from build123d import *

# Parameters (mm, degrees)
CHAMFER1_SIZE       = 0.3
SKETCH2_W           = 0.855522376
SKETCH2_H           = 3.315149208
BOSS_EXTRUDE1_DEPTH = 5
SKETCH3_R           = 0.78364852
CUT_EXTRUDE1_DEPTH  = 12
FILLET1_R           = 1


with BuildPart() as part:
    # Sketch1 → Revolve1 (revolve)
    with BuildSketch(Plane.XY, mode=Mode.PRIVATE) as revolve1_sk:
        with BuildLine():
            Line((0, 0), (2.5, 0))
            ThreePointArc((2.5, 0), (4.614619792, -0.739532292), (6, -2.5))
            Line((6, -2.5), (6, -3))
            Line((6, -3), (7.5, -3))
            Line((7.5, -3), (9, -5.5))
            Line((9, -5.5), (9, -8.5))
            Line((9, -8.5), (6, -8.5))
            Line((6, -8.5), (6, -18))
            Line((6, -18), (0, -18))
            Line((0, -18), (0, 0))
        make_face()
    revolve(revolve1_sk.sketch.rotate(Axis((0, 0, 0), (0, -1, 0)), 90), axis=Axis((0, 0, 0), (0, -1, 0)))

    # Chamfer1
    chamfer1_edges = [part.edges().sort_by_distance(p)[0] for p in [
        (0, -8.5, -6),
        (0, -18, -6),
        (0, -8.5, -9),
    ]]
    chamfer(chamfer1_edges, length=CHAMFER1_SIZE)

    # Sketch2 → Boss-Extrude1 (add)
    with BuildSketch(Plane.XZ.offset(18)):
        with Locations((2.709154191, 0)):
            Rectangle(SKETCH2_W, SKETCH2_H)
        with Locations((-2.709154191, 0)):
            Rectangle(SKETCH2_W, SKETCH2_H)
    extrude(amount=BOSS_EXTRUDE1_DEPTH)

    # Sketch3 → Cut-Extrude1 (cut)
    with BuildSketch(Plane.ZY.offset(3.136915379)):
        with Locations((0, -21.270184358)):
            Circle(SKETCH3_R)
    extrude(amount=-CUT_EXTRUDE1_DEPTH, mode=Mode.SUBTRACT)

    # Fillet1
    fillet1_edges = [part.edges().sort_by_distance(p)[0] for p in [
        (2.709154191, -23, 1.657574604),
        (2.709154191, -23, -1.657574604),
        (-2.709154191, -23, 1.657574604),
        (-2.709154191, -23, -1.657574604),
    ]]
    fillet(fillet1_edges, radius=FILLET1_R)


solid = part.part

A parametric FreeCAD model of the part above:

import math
import FreeCAD as App
import Part
import Sketcher

V = App.Vector
Q = App.Units.Quantity


def edges_at(feature, points):
    """Names of the edges that pass closest to the given points."""
    edges = feature.Shape.Edges
    near = lambda p: min(range(len(edges)), key=lambda i: edges[i].distToShape(Part.Vertex(*p))[0])
    return sorted({f"Edge{near(p) + 1}" for p in points})

doc = App.newDocument("Part")
body = doc.addObject("PartDesign::Body", "Body")

# Sketch on XY plane
sketch1 = body.newObject("Sketcher::SketchObject", "Sketch")
sketch1.AttachmentSupport = (doc.getObject("XY_Plane"), [""])
sketch1.MapMode = "FlatFace"
sketch1.addGeometry([
    Part.LineSegment(V(2.5, 0, 0), V(0, 0, 0)),  # 0
    Part.LineSegment(V(0, 0, 0), V(0, -18, 0)),  # 1
    Part.LineSegment(V(0, -18, 0), V(6, -18, 0)),  # 2
    Part.LineSegment(V(6, -18, 0), V(6, -8.5, 0)),  # 3
    Part.LineSegment(V(6, -8.5, 0), V(9, -8.5, 0)),  # 4
    Part.LineSegment(V(9, -8.5, 0), V(9, -5.5, 0)),  # 5
    Part.LineSegment(V(9, -5.5, 0), V(7.5, -3, 0)),  # 6
    Part.LineSegment(V(7.5, -3, 0), V(6, -3, 0)),  # 7
    Part.LineSegment(V(6, -3, 0), V(6, -2.5, 0)),  # 8
    Part.ArcOfCircle(Part.Circle(V(2.3, -4, 0), V(0, 0, 1), 4), math.radians(22), math.radians(87)),  # 9
], False)
sketch1.addConstraint([
    Sketcher.Constraint("Coincident", 0, 2, 1, 1),
    Sketcher.Constraint("Coincident", 1, 2, 2, 1),
    Sketcher.Constraint("Coincident", 2, 2, 3, 1),
    Sketcher.Constraint("Coincident", 3, 2, 4, 1),
    Sketcher.Constraint("Coincident", 4, 2, 5, 1),
    Sketcher.Constraint("Coincident", 5, 2, 6, 1),
    Sketcher.Constraint("Coincident", 6, 2, 7, 1),
    Sketcher.Constraint("Coincident", 7, 2, 8, 1),
    Sketcher.Constraint("Coincident", 8, 2, 9, 1),
    Sketcher.Constraint("Coincident", 9, 2, 0, 1),
    Sketcher.Constraint("Horizontal", 0),
    Sketcher.Constraint("Vertical", 1),
    Sketcher.Constraint("Horizontal", 2),
    Sketcher.Constraint("Vertical", 3),
    Sketcher.Constraint("Horizontal", 4),
    Sketcher.Constraint("Vertical", 5),
    Sketcher.Constraint("Horizontal", 7),
    Sketcher.Constraint("Vertical", 8),
    Sketcher.Constraint("Coincident", 0, 2, -1, 1),
    Sketcher.Constraint("Vertical", 3, 2, 7, 2),
    Sketcher.Constraint("Equal", 4, 5),
    Sketcher.Constraint("Radius", 9, Q("4 mm")),
    Sketcher.Constraint("DistanceX", 2, 1, 2, 2, Q("6 mm")),
    Sketcher.Constraint("DistanceX", 4, 1, 4, 2, Q("3 mm")),
    Sketcher.Constraint("DistanceY", 1, 2, 1, 1, Q("18 mm")),
    Sketcher.Constraint("DistanceX", 0, 2, 0, 1, Q("2.5 mm")),
    Sketcher.Constraint("DistanceX", 7, 2, 7, 1, Q("1.5 mm")),
    Sketcher.Constraint("DistanceY", 3, 1, 3, 2, Q("9.5 mm")),
    Sketcher.Constraint("DistanceY", 8, 1, 8, 2, Q("0.5 mm")),
    Sketcher.Constraint("DistanceY", 6, 2, -1, 1, Q("3 mm")),
])
revolution = body.newObject("PartDesign::Revolution", "Revolution")
revolution.Profile = sketch1
revolution.ReferenceAxis = (sketch1, ["V_Axis"])
revolution.Angle = 360
doc.recompute()

chamfer = body.newObject("PartDesign::Chamfer", "Chamfer")
chamfer.Base = (revolution, edges_at(revolution, [(0, -8.5, -6), (0, -18, -6), (0, -8.5, -9)]))
chamfer.Size = 0.3

# Sketch on XZ plane
sketch2 = body.newObject("Sketcher::SketchObject", "Sketch001")
sketch2.AttachmentSupport = (doc.getObject("XZ_Plane"), [""])
sketch2.MapMode = "FlatFace"
sketch2.AttachmentOffset = App.Placement(V(0, 0, 18), App.Rotation())
sketch2.addGeometry([
    Part.LineSegment(V(2.3, 1.7, 0), V(2.3, -1.7, 0)),  # 0
    Part.LineSegment(V(2.3, -1.7, 0), V(3.1, -1.7, 0)),  # 1
    Part.LineSegment(V(3.1, -1.7, 0), V(3.1, 1.7, 0)),  # 2
    Part.LineSegment(V(3.1, 1.7, 0), V(2.3, 1.7, 0)),  # 3
    Part.LineSegment(V(-3.1, 1.7, 0), V(-3.1, -1.7, 0)),  # 4
    Part.LineSegment(V(-3.1, -1.7, 0), V(-2.3, -1.7, 0)),  # 5
    Part.LineSegment(V(-2.3, -1.7, 0), V(-2.3, 1.7, 0)),  # 6
    Part.LineSegment(V(-2.3, 1.7, 0), V(-3.1, 1.7, 0)),  # 7
], False)
sketch2.addConstraint([
    Sketcher.Constraint("Coincident", 0, 2, 1, 1),
    Sketcher.Constraint("Coincident", 1, 2, 2, 1),
    Sketcher.Constraint("Coincident", 2, 2, 3, 1),
    Sketcher.Constraint("Coincident", 3, 2, 0, 1),
    Sketcher.Constraint("Coincident", 4, 2, 5, 1),
    Sketcher.Constraint("Coincident", 5, 2, 6, 1),
    Sketcher.Constraint("Coincident", 6, 2, 7, 1),
    Sketcher.Constraint("Coincident", 7, 2, 4, 1),
    Sketcher.Constraint("Vertical", 0),
    Sketcher.Constraint("Horizontal", 1),
    Sketcher.Constraint("Vertical", 2),
    Sketcher.Constraint("Horizontal", 3),
    Sketcher.Constraint("Vertical", 4),
    Sketcher.Constraint("Horizontal", 5),
    Sketcher.Constraint("Vertical", 6),
    Sketcher.Constraint("Horizontal", 7),
    Sketcher.Constraint("Symmetric", 2, 2, 4, 2, -1, 1),
    Sketcher.Constraint("Symmetric", 0, 2, 6, 2, -1, 1),
    Sketcher.Constraint("Horizontal", 1, 2, 4, 2),
    Sketcher.Constraint("DistanceY", 0, 2, 0, 1, Q("3.315149 mm")),
    Sketcher.Constraint("DistanceX", 1, 1, 1, 2, Q("0.855522 mm")),
    Sketcher.Constraint("DistanceX", 4, 2, 0, 2, Q("5.418308 mm")),
])
pad1 = body.newObject("PartDesign::Pad", "Pad")
pad1.Profile = sketch2
pad1.Length = 5

# Sketch on YZ plane
sketch3 = body.newObject("Sketcher::SketchObject", "Sketch002")
sketch3.AttachmentSupport = (doc.getObject("YZ_Plane"), [""])
sketch3.MapMode = "FlatFace"
sketch3.AttachmentOffset = App.Placement(V(0, 0, -3.136915), App.Rotation())
sketch3.addGeometry(Part.Circle(V(-21.3, 0, 0), V(0, 0, 1), 0.8), False)
sketch3.addConstraint([
    Sketcher.Constraint("PointOnObject", 0, 3, -1),
    Sketcher.Constraint("Diameter", 0, Q("1.567297 mm")),
    Sketcher.Constraint("DistanceX", 0, 3, -1, 1, Q("21.270184 mm")),
])
pocket1 = body.newObject("PartDesign::Pocket", "Pocket")
pocket1.Profile = sketch3
pocket1.Length = 12
pocket1.Reversed = True
doc.recompute()

fillet = body.newObject("PartDesign::Fillet", "Fillet")
fillet.Base = (pocket1, edges_at(pocket1, [
    (2.709, -23, 1.658),
    (2.709, -23, -1.658),
    (-2.709, -23, 1.658),
    (-2.709, -23, -1.658),
]))
fillet.Radius = 1

doc.recompute()
